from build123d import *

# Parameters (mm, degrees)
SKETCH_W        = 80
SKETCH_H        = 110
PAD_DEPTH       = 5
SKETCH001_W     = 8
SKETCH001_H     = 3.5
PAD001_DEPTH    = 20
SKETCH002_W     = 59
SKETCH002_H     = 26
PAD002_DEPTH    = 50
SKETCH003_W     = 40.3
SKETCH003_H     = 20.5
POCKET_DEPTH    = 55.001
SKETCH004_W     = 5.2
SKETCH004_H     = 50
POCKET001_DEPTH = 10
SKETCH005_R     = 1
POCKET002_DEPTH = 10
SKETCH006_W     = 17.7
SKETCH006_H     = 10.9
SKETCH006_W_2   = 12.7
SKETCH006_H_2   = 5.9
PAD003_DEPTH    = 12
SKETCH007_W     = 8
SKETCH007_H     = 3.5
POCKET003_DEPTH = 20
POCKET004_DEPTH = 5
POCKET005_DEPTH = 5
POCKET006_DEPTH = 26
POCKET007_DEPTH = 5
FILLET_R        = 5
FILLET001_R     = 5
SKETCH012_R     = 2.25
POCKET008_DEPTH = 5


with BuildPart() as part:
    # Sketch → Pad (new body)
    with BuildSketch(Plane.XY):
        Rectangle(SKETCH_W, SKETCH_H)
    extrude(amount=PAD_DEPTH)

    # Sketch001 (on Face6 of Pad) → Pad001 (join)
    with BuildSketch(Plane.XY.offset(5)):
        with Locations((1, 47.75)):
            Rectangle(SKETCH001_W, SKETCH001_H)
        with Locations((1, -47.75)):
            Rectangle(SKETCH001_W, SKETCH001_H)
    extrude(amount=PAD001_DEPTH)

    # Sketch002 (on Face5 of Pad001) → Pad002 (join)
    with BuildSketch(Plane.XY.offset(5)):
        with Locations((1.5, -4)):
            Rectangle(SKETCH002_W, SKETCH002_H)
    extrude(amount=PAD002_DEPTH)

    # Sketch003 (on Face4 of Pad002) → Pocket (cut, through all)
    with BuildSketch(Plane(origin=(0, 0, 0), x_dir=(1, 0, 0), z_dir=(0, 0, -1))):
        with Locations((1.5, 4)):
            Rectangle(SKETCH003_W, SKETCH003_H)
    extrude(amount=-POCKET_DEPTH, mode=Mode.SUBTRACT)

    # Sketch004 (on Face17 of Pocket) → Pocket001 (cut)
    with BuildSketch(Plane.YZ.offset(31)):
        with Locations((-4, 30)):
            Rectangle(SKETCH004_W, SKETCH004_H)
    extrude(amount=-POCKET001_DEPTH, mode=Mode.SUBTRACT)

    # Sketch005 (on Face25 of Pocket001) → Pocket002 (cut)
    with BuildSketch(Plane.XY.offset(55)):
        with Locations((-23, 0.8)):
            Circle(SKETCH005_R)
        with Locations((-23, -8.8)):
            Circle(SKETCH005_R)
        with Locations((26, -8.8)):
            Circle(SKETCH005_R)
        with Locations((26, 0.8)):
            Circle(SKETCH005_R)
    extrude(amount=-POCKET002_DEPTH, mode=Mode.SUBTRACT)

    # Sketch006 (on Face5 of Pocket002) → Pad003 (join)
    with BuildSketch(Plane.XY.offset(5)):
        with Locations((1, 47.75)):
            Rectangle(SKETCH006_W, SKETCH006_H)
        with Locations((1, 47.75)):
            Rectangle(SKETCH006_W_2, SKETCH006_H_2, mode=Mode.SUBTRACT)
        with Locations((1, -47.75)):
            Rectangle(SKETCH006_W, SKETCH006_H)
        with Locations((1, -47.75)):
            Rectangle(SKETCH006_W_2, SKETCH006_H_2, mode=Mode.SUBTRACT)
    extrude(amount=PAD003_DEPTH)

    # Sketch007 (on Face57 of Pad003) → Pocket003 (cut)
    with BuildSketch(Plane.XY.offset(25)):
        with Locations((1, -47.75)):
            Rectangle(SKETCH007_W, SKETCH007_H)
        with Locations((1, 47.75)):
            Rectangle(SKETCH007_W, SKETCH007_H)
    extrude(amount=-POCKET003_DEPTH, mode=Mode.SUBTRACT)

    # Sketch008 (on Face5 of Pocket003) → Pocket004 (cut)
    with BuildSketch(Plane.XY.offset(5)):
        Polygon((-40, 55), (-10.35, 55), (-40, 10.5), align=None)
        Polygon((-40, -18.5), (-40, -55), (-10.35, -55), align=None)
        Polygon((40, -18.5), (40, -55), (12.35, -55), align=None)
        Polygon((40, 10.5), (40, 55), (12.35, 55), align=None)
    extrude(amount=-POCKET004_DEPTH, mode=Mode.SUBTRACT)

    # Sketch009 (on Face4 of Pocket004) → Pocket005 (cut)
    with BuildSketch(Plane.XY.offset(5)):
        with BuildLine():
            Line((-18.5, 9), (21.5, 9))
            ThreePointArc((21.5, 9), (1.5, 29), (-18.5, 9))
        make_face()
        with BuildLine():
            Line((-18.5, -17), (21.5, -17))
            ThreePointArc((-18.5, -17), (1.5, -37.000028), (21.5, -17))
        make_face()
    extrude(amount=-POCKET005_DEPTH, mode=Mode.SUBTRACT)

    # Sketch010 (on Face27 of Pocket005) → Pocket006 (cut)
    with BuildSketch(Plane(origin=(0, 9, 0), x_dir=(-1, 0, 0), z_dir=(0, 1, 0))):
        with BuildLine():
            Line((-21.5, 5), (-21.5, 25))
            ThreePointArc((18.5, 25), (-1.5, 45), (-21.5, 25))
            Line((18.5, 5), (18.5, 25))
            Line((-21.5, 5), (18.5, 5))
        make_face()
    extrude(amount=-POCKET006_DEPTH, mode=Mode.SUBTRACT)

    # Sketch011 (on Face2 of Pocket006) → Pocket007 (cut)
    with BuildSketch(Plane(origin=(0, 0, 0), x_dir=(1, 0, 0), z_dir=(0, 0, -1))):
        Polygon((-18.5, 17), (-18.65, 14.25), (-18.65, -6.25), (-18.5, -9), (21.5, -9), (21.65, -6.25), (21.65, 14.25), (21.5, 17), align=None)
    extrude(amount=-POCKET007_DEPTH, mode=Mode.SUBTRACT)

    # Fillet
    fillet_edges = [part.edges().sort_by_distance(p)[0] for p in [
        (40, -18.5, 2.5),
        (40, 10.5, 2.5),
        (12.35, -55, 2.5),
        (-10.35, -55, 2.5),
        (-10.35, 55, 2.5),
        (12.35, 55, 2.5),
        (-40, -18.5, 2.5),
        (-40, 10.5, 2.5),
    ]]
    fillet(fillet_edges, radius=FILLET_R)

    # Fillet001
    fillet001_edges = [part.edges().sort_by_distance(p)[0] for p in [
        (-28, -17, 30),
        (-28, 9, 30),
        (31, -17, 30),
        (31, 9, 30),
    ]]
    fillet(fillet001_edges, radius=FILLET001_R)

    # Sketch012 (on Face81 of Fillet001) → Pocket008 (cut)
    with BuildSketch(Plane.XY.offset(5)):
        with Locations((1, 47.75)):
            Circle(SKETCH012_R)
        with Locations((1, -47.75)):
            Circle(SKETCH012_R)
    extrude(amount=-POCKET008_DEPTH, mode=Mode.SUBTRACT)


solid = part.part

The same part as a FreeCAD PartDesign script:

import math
import FreeCAD as App
import Part
import Sketcher

V = App.Vector
Q = App.Units.Quantity


def edges_at(feature, points):
    """Names of the edges that pass closest to the given points."""
    edges = feature.Shape.Edges
    near = lambda p: min(range(len(edges)), key=lambda i: edges[i].distToShape(Part.Vertex(*p))[0])
    return sorted({f"Edge{near(p) + 1}" for p in points})


def add_polygon(sketch, points):
    """Adds a closed chain of lines whose ends are joined by coincident constraints."""
    first, n = sketch.GeometryCount, len(points)
    for a, b in zip(points, points[1:] + points[:1]):
        sketch.addGeometry(Part.LineSegment(App.Vector(*a, 0), App.Vector(*b, 0)), False)
    for i in range(n):
        sketch.addConstraint(Sketcher.Constraint("Coincident", first + i, 2, first + (i + 1) % n, 1))

doc = App.newDocument("Part")
body = doc.addObject("PartDesign::Body", "Body")

sketch1 = doc.addObject("Sketcher::SketchObject", "Sketch")
body.addObject(sketch1)
sketch1.AttachmentSupport = (doc.XY_Plane, [""])
sketch1.MapMode = "FlatFace"
add_polygon(sketch1, [(-40, 55), (-40, -55), (40, -55), (40, 55)])
sketch1.addConstraint([
    Sketcher.Constraint("Vertical", 0),
    Sketcher.Constraint("Horizontal", 1),
    Sketcher.Constraint("Vertical", 2),
    Sketcher.Constraint("Horizontal", 3),
    Sketcher.Constraint("Symmetric", 0, 2, 2, 2, -1, 1),
    Sketcher.Constraint("DistanceX", 1, 1, 1, 2, Q("80 mm")),
    Sketcher.Constraint("DistanceY", 0, 2, 0, 1, Q("110 mm")),
])
pad1 = doc.addObject("PartDesign::Pad", "Pad")
body.addObject(pad1)
pad1.Profile = sketch1
pad1.Length = 5

sketch2 = doc.addObject("Sketcher::SketchObject", "Sketch001")
body.addObject(sketch2)
sketch2.AttachmentSupport = (doc.XY_Plane, [""])
sketch2.MapMode = "FlatFace"
sketch2.AttachmentOffset = App.Placement(V(0, 0, 5), App.Rotation())
add_polygon(sketch2, [(-3, 49.5), (-3, 46), (5, 46), (5, 49.5)])
add_polygon(sketch2, [(-3, -46), (-3, -49.5), (5, -49.5), (5, -46)])
sketch2.addConstraint([
    Sketcher.Constraint("Vertical", 0),
    Sketcher.Constraint("Horizontal", 1),
    Sketcher.Constraint("Vertical", 2),
    Sketcher.Constraint("Horizontal", 3),
    Sketcher.Constraint("Vertical", 4),
    Sketcher.Constraint("Horizontal", 5),
    Sketcher.Constraint("Vertical", 6),
    Sketcher.Constraint("Horizontal", 7),
    Sketcher.Constraint("Symmetric", 3, 2, 4, 2, -1),
    Sketcher.Constraint("Symmetric", 1, 2, 6, 2, -1),
    Sketcher.Constraint("DistanceX", 1, 1, 1, 2, Q("8 mm")),
    Sketcher.Constraint("DistanceY", 0, 2, 0, 1, Q("3.5 mm")),
    Sketcher.Constraint("DistanceX", 0, 2, -1, 1, Q("3 mm")),
    Sketcher.Constraint("DistanceY", -1, 1, 0, 2, Q("46 mm")),
])
pad2 = doc.addObject("PartDesign::Pad", "Pad001")
body.addObject(pad2)
pad2.Profile = sketch2
pad2.Length = 20

sketch3 = doc.addObject("Sketcher::SketchObject", "Sketch002")
body.addObject(sketch3)
sketch3.AttachmentSupport = (doc.XY_Plane, [""])
sketch3.MapMode = "FlatFace"
sketch3.AttachmentOffset = App.Placement(V(0, 0, 5), App.Rotation())
add_polygon(sketch3, [(-28, 9), (-28, -17), (31, -17), (31, 9)])
sketch3.addConstraint([
    Sketcher.Constraint("Vertical", 0),
    Sketcher.Constraint("Horizontal", 1),
    Sketcher.Constraint("Vertical", 2),
    Sketcher.Constraint("Horizontal", 3),
    Sketcher.Constraint("DistanceX", 1, 1, 1, 2, Q("59 mm")),
    Sketcher.Constraint("DistanceY", 0, 2, 0, 1, Q("26 mm")),
    Sketcher.Constraint("DistanceX", 0, 2, -1, 1, Q("28 mm")),
    Sketcher.Constraint("DistanceY", 0, 2, -1, 1, Q("17 mm")),
])
pad3 = doc.addObject("PartDesign::Pad", "Pad002")
body.addObject(pad3)
pad3.Profile = sketch3
pad3.Length = 50

sketch4 = doc.addObject("Sketcher::SketchObject", "Sketch003")
body.addObject(sketch4)
sketch4.AttachmentSupport = (doc.XY_Plane, [""])
sketch4.MapMode = "FlatFace"
add_polygon(sketch4, [(-19, -14), (-19, 6), (22, 6), (22, -14)])
sketch4.addConstraint([
    Sketcher.Constraint("Vertical", 0),
    Sketcher.Constraint("Horizontal", 1),
    Sketcher.Constraint("Vertical", 2),
    Sketcher.Constraint("Horizontal", 3),
    Sketcher.Constraint("DistanceX", 1, 1, 1, 2, Q("40.3 mm")),
    Sketcher.Constraint("DistanceY", 0, 1, 0, 2, Q("20.5 mm")),
    Sketcher.Constraint("DistanceX", 0, 2, -1, 1, Q("18.65 mm")),
    Sketcher.Constraint("DistanceY", -1, 1, 0, 2, Q("6.25 mm")),
])
pocket1 = doc.addObject("PartDesign::Pocket", "Pocket")
body.addObject(pocket1)
pocket1.Profile = sketch4
pocket1.Type = "ThroughAll"
pocket1.Reversed = True

sketch5 = doc.addObject("Sketcher::SketchObject", "Sketch004")
body.addObject(sketch5)
sketch5.AttachmentSupport = (doc.YZ_Plane, [""])
sketch5.MapMode = "FlatFace"
sketch5.AttachmentOffset = App.Placement(V(0, 0, 31), App.Rotation())
add_polygon(sketch5, [(-7, 55), (-7, 5), (-1, 5), (-1, 55)])
sketch5.addConstraint([
    Sketcher.Constraint("Vertical", 0),
    Sketcher.Constraint("Horizontal", 1),
    Sketcher.Constraint("Vertical", 2),
    Sketcher.Constraint("Horizontal", 3),
    Sketcher.Constraint("DistanceY", 0, 2, 0, 1, Q("50 mm")),
    Sketcher.Constraint("DistanceX", 1, 1, 1, 2, Q("5.2 mm")),
    Sketcher.Constraint("DistanceY", -1, 1, 0, 2, Q("5 mm")),
    Sketcher.Constraint("DistanceX", 0, 2, -1, 1, Q("6.6 mm")),
])
pocket2 = doc.addObject("PartDesign::Pocket", "Pocket001")
body.addObject(pocket2)
pocket2.Profile = sketch5
pocket2.Length = 10

sketch6 = doc.addObject("Sketcher::SketchObject", "Sketch005")
body.addObject(sketch6)
sketch6.AttachmentSupport = (doc.XY_Plane, [""])
sketch6.MapMode = "FlatFace"
sketch6.AttachmentOffset = App.Placement(V(0, 0, 55), App.Rotation())
sketch6.addGeometry([
    Part.Circle(V(-23, 0.8, 0), V(0, 0, 1), 1),
    Part.Circle(V(-23, -8.8, 0), V(0, 0, 1), 1),
    Part.Circle(V(26, -8.8, 0), V(0, 0, 1), 1),
    Part.Circle(V(26, 0.8, 0), V(0, 0, 1), 1),
], False)
sketch6.addConstraint([
    Sketcher.Constraint("Equal", 0, 1),
    Sketcher.Constraint("Equal", 1, 2),
    Sketcher.Constraint("Equal", 2, 3),
    Sketcher.Constraint("Horizontal", 1, 3, 2, 3),
    Sketcher.Constraint("Horizontal", 0, 3, 3, 3),
    Sketcher.Constraint("Vertical", 0, 3, 1, 3),
    Sketcher.Constraint("Vertical", 2, 3, 3, 3),
    Sketcher.Constraint("Diameter", 0, Q("2 mm")),
    Sketcher.Constraint("DistanceX", 0, 3, -1, 1, Q("23 mm")),
    Sketcher.Constraint("DistanceX", -1, 1, 2, 3, Q("26 mm")),
    Sketcher.Constraint("DistanceY", -1, 1, 0, 3, Q("0.8 mm")),
    Sketcher.Constraint("DistanceY", 1, 3, -1, 1, Q("8.8 mm")),
])
pocket3 = doc.addObject("PartDesign::Pocket", "Pocket002")
body.addObject(pocket3)
pocket3.Profile = sketch6
pocket3.Length = 10

sketch7 = doc.addObject("Sketcher::SketchObject", "Sketch006")
body.addObject(sketch7)
sketch7.AttachmentSupport = (doc.XY_Plane, [""])
sketch7.MapMode = "FlatFace"
sketch7.AttachmentOffset = App.Placement(V(0, 0, 5), App.Rotation())
add_polygon(sketch7, [(-8, 53), (-8, 42), (10, 42), (10, 53)])
add_polygon(sketch7, [(7, 45), (-5, 45), (-5, 51), (7, 51)])
add_polygon(sketch7, [(-8, -42), (-8, -53), (10, -53), (10, -42)])
add_polygon(sketch7, [(7, -51), (-5, -51), (-5, -45), (7, -45)])
sketch7.addConstraint([
    Sketcher.Constraint("Vertical", 0),
    Sketcher.Constraint("Horizontal", 1),
    Sketcher.Constraint("Vertical", 2),
    Sketcher.Constraint("Horizontal", 3),
    Sketcher.Constraint("Horizontal", 4),
    Sketcher.Constraint("Vertical", 5),
    Sketcher.Constraint("Horizontal", 6),
    Sketcher.Constraint("Vertical", 7),
    Sketcher.Constraint("Vertical", 8),
    Sketcher.Constraint("Horizontal", 9),
    Sketcher.Constraint("Vertical", 10),
    Sketcher.Constraint("Horizontal", 11),
    Sketcher.Constraint("Horizontal", 12),
    Sketcher.Constraint("Vertical", 13),
    Sketcher.Constraint("Horizontal", 14),
    Sketcher.Constraint("Vertical", 15),
    Sketcher.Constraint("Symmetric", 3, 2, 8, 2, -1),
    Sketcher.Constraint("Symmetric", 1, 2, 10, 2, -1),
    Sketcher.Constraint("Symmetric", 5, 2, 12, 2, -1),
    Sketcher.Constraint("Symmetric", 7, 2, 14, 2, -1),
    Sketcher.Constraint("DistanceX", 1, 1, 1, 2, Q("17.7 mm")),
    Sketcher.Constraint("DistanceX", 4, 2, 4, 1, Q("12.7 mm")),
    Sketcher.Constraint("DistanceY", 0, 2, 0, 1, Q("10.9 mm")),
    Sketcher.Constraint("DistanceY", 5, 1, 5, 2, Q("5.9 mm")),
    Sketcher.Constraint("DistanceY", 8, 2, 4, 2, Q("98 mm")),
    Sketcher.Constraint("DistanceY", -1, 1, 0, 2, Q("42.3 mm")),
    Sketcher.Constraint("DistanceX", 0, 2, 4, 2, Q("2.5 mm")),
    Sketcher.Constraint("DistanceX", 0, 2, -1, 1, Q("7.85 mm")),
])
pad4 = doc.addObject("PartDesign::Pad", "Pad003")
body.addObject(pad4)
pad4.Profile = sketch7
pad4.Length = 12

sketch8 = doc.addObject("Sketcher::SketchObject", "Sketch007")
body.addObject(sketch8)
sketch8.AttachmentSupport = (doc.XY_Plane, [""])
sketch8.MapMode = "FlatFace"
sketch8.AttachmentOffset = App.Placement(V(0, 0, 25), App.Rotation())
add_polygon(sketch8, [(-3, -46), (-3, -49.5), (5, -49.5), (5, -46)])
add_polygon(sketch8, [(-3, 49.5), (-3, 46), (5, 46), (5, 49.5)])
sketch8.addConstraint([
    Sketcher.Constraint("Vertical", 0),
    Sketcher.Constraint("Horizontal", 1),
    Sketcher.Constraint("Vertical", 2),
    Sketcher.Constraint("Horizontal", 3),
    Sketcher.Constraint("Vertical", 4),
    Sketcher.Constraint("Horizontal", 5),
    Sketcher.Constraint("Vertical", 6),
    Sketcher.Constraint("Horizontal", 7),
    Sketcher.Constraint("Symmetric", 3, 2, 4, 2, -1),
    Sketcher.Constraint("Symmetric", 1, 2, 6, 2, -1),
    Sketcher.Constraint("DistanceX", 1, 1, 1, 2, Q("8 mm")),
    Sketcher.Constraint("DistanceY", 0, 2, 0, 1, Q("3.5 mm")),
    Sketcher.Constraint("DistanceX", 0, 2, -1, 1, Q("3 mm")),
    Sketcher.Constraint("DistanceY", 2, 2, -1, 1, Q("46 mm")),
])
pocket4 = doc.addObject("PartDesign::Pocket", "Pocket003")
body.addObject(pocket4)
pocket4.Profile = sketch8
pocket4.Length = 20

sketch9 = doc.addObject("Sketcher::SketchObject", "Sketch008")
body.addObject(sketch9)
sketch9.AttachmentSupport = (doc.XY_Plane, [""])
sketch9.MapMode = "FlatFace"
sketch9.AttachmentOffset = App.Placement(V(0, 0, 5), App.Rotation())
add_polygon(sketch9, [(-10, 55), (-40, 55), (-40, 10)])
add_polygon(sketch9, [(-40, -18), (-40, -55), (-10, -55)])
add_polygon(sketch9, [(40, -55), (40, -18), (12, -55)])
add_polygon(sketch9, [(40, 10), (40, 55), (12, 55)])
sketch9.addConstraint([
    Sketcher.Constraint("Horizontal", 0),
    Sketcher.Constraint("Vertical", 1),
    Sketcher.Constraint("Vertical", 3),
    Sketcher.Constraint("Horizontal", 4),
    Sketcher.Constraint("Vertical", 6),
    Sketcher.Constraint("Horizontal", 8),
    Sketcher.Constraint("Vertical", 9),
    Sketcher.Constraint("Horizontal", 10),
    Sketcher.Constraint("Symmetric", 0, 2, 8, 2, -1, 1),
    Sketcher.Constraint("Symmetric", 3, 2, 9, 2, -1, 1),
    Sketcher.Constraint("Symmetric", 5, 2, 6, 2, -2),
    Sketcher.Constraint("Symmetric", 2, 2, 4, 2, -1),
    Sketcher.Constraint("Horizontal", 1, 2, 11, 2),
    Sketcher.Constraint("Vertical", 7, 2, 10, 2),
    Sketcher.Constraint("DistanceY", 1, 2, 1, 1, Q("44.5 mm")),
    Sketcher.Constraint("DistanceY", 3, 2, 3, 1, Q("36.5 mm")),
    Sketcher.Constraint("DistanceX", 0, 2, -1, 1, Q("40 mm")),
    Sketcher.Constraint("DistanceY", -1, 1, 0, 2, Q("55 mm")),
    Sketcher.Constraint("DistanceX", 0, 2, 0, 1, Q("29.65 mm")),
    Sketcher.Constraint("DistanceX", 8, 1, 8, 2, Q("27.65 mm")),
])
pocket5 = doc.addObject("PartDesign::Pocket", "Pocket004")
body.addObject(pocket5)
pocket5.Profile = sketch9
pocket5.Length = 5

sketch10 = doc.addObject("Sketcher::SketchObject", "Sketch009")
body.addObject(sketch10)
sketch10.AttachmentSupport = (doc.XY_Plane, [""])
sketch10.MapMode = "FlatFace"
sketch10.AttachmentOffset = App.Placement(V(0, 0, 5), App.Rotation())
sketch10.addGeometry([
    Part.LineSegment(V(-18, 9, 0), V(22, 9, 0)),
    Part.ArcOfCircle(Part.Circle(V(2, 9, 0), V(0, 0, 1), 20), math.radians(0), math.radians(180)),
    Part.LineSegment(V(22, -17, 0), V(-18, -17, 0)),
    Part.ArcOfCircle(Part.Circle(V(2, -17, 0), V(0, 0, 1), 20), math.radians(180), math.radians(360)),
], False)
sketch10.addConstraint([
    Sketcher.Constraint("Coincident", 0, 1, 1, 2),
    Sketcher.Constraint("Coincident", 1, 1, 0, 2),
    Sketcher.Constraint("Coincident", 2, 1, 3, 2),
    Sketcher.Constraint("Coincident", 3, 1, 2, 2),
    Sketcher.Constraint("Horizontal", 0),
    Sketcher.Constraint("Horizontal", 2),
    Sketcher.Constraint("Equal", 1, 3),
    Sketcher.Constraint("Horizontal", 1, 3, 0, 1),
    Sketcher.Constraint("Vertical", 1, 3, 3, 3),
    Sketcher.Constraint("Radius", 1, Q("20 mm")),
    Sketcher.Constraint("DistanceY", -1, 1, 1, 3, Q("9 mm")),
    Sketcher.Constraint("DistanceY", 2, 1, -1, 1, Q("17 mm")),
    Sketcher.Constraint("DistanceX", -1, 1, 1, 3, Q("1.5 mm")),
    Sketcher.Constraint("DistanceY", 3, 3, -1, 1, Q("17.000028 mm")),
])
pocket6 = doc.addObject("PartDesign::Pocket", "Pocket005")
body.addObject(pocket6)
pocket6.Profile = sketch10
pocket6.Length = 5

sketch11 = doc.addObject("Sketcher::SketchObject", "Sketch010")
body.addObject(sketch11)
sketch11.AttachmentSupport = (doc.XZ_Plane, [""])
sketch11.MapMode = "FlatFace"
sketch11.AttachmentOffset = App.Placement(V(0, 0, -9), App.Rotation())
sketch11.addGeometry([
    Part.LineSegment(V(22, 25, 0), V(22, 5, 0)),
    Part.LineSegment(V(22, 5, 0), V(-18, 5, 0)),
    Part.LineSegment(V(-18, 5, 0), V(-18, 25, 0)),
    Part.ArcOfCircle(Part.Circle(V(2, 25, 0), V(0, 0, 1), 20), math.radians(0), math.radians(180)),
], False)
sketch11.addConstraint([
    Sketcher.Constraint("Coincident", 0, 2, 1, 1),
    Sketcher.Constraint("Coincident", 1, 2, 2, 1),
    Sketcher.Constraint("Tangent", 2, 2, 3, 2),
    Sketcher.Constraint("Tangent", 3, 1, 0, 1),
    Sketcher.Constraint("Vertical", 0),
    Sketcher.Constraint("Horizontal", 1),
    Sketcher.Constraint("Vertical", 2),
    Sketcher.Constraint("Radius", 3, Q("20 mm")),
    Sketcher.Constraint("DistanceY", 0, 2, 0, 1, Q("20 mm")),
    Sketcher.Constraint("DistanceY", -1, 1, 3, 3, Q("25 mm")),
    Sketcher.Constraint("DistanceX", -1, 1, 3, 3, Q("1.5 mm")),
])
pocket7 = doc.addObject("PartDesign::Pocket", "Pocket006")
body.addObject(pocket7)
pocket7.Profile = sketch11
pocket7.Length = 26
pocket7.Reversed = True

sketch12 = doc.addObject("Sketcher::SketchObject", "Sketch011")
body.addObject(sketch12)
sketch12.AttachmentSupport = (doc.XY_Plane, [""])
sketch12.MapMode = "FlatFace"
add_polygon(sketch12, [(-18.5, -17), (-18.6, -14.2), (-18.6, 6.2), (-18.5, 9), (21.5, 9), (21.6, 6.2), (21.6, -14.2), (21.5, -17)])
sketch12.addConstraint([
    Sketcher.Constraint("Vertical", 1),
    Sketcher.Constraint("Horizontal", 3),
    Sketcher.Constraint("Vertical", 5),
    Sketcher.Constraint("Horizontal", 7),
    Sketcher.Constraint("Parallel", 0, 4),
    Sketcher.Constraint("Parallel", 2, 6),
    Sketcher.Constraint("Horizontal", 1, 2, 4, 2),
    Sketcher.Constraint("Horizontal", 0, 2, 5, 2),
    Sketcher.Constraint("Vertical", 3, 2, 6, 2),
    Sketcher.Constraint("Vertical", 2, 2, 7, 2),
    Sketcher.Constraint("DistanceX", 3, 1, 3, 2, Q("40 mm")),
    Sketcher.Constraint("DistanceY", 1, 1, 1, 2, Q("20.5 mm")),
    Sketcher.Constraint("DistanceY", -1, 1, 2, 2, Q("9 mm")),
    Sketcher.Constraint("DistanceY", 6, 2, -1, 1, Q("17 mm")),
    Sketcher.Constraint("DistanceX", 2, 2, -1, 1, Q("18.5 mm")),
    Sketcher.Constraint("DistanceX", 1, 2, 4, 2, Q("40.3 mm")),
])
pocket8 = doc.addObject("PartDesign::Pocket", "Pocket007")
body.addObject(pocket8)
pocket8.Profile = sketch12
pocket8.Length = 5
pocket8.Reversed = True
doc.recompute()

fillet = doc.addObject("PartDesign::Fillet", "Fillet")
body.addObject(fillet)
fillet.Base = (pocket8, edges_at(pocket8, [
    (40, -18.5, 2.5),
    (40, 10.5, 2.5),
    (12.35, -55, 2.5),
    (-10.35, -55, 2.5),
    (-10.35, 55, 2.5),
    (12.35, 55, 2.5),
    (-40, -18.5, 2.5),
    (-40, 10.5, 2.5),
]))
fillet.Radius = 5
doc.recompute()

fillet2 = doc.addObject("PartDesign::Fillet", "Fillet001")
body.addObject(fillet2)
fillet2.Base = (fillet, edges_at(fillet, [
    (-28, -17, 30),
    (-28, 9, 30),
    (31, -17, 30),
    (31, 9, 30),
]))
fillet2.Radius = 5

sketch13 = doc.addObject("Sketcher::SketchObject", "Sketch012")
body.addObject(sketch13)
sketch13.AttachmentSupport = (doc.XY_Plane, [""])
sketch13.MapMode = "FlatFace"
sketch13.AttachmentOffset = App.Placement(V(0, 0, 5), App.Rotation())
sketch13.addGeometry([
    Part.Circle(V(1, 47.8, 0), V(0, 0, 1), 2.2),
    Part.Circle(V(1, -47.8, 0), V(0, 0, 1), 2.2),
], False)
sketch13.addConstraint([
    Sketcher.Constraint("Equal", 0, 1),
    Sketcher.Constraint("Symmetric", 0, 3, 1, 3, -1),
    Sketcher.Constraint("Diameter", 0, Q("4.5 mm")),
    Sketcher.Constraint("DistanceX", -1, 1, 0, 3, Q("1 mm")),
    Sketcher.Constraint("DistanceY", 1, 3, 0, 3, Q("95.5 mm")),
])
pocket9 = doc.addObject("PartDesign::Pocket", "Pocket008")
body.addObject(pocket9)
pocket9.Profile = sketch13
pocket9.Length = 5

doc.recompute()
